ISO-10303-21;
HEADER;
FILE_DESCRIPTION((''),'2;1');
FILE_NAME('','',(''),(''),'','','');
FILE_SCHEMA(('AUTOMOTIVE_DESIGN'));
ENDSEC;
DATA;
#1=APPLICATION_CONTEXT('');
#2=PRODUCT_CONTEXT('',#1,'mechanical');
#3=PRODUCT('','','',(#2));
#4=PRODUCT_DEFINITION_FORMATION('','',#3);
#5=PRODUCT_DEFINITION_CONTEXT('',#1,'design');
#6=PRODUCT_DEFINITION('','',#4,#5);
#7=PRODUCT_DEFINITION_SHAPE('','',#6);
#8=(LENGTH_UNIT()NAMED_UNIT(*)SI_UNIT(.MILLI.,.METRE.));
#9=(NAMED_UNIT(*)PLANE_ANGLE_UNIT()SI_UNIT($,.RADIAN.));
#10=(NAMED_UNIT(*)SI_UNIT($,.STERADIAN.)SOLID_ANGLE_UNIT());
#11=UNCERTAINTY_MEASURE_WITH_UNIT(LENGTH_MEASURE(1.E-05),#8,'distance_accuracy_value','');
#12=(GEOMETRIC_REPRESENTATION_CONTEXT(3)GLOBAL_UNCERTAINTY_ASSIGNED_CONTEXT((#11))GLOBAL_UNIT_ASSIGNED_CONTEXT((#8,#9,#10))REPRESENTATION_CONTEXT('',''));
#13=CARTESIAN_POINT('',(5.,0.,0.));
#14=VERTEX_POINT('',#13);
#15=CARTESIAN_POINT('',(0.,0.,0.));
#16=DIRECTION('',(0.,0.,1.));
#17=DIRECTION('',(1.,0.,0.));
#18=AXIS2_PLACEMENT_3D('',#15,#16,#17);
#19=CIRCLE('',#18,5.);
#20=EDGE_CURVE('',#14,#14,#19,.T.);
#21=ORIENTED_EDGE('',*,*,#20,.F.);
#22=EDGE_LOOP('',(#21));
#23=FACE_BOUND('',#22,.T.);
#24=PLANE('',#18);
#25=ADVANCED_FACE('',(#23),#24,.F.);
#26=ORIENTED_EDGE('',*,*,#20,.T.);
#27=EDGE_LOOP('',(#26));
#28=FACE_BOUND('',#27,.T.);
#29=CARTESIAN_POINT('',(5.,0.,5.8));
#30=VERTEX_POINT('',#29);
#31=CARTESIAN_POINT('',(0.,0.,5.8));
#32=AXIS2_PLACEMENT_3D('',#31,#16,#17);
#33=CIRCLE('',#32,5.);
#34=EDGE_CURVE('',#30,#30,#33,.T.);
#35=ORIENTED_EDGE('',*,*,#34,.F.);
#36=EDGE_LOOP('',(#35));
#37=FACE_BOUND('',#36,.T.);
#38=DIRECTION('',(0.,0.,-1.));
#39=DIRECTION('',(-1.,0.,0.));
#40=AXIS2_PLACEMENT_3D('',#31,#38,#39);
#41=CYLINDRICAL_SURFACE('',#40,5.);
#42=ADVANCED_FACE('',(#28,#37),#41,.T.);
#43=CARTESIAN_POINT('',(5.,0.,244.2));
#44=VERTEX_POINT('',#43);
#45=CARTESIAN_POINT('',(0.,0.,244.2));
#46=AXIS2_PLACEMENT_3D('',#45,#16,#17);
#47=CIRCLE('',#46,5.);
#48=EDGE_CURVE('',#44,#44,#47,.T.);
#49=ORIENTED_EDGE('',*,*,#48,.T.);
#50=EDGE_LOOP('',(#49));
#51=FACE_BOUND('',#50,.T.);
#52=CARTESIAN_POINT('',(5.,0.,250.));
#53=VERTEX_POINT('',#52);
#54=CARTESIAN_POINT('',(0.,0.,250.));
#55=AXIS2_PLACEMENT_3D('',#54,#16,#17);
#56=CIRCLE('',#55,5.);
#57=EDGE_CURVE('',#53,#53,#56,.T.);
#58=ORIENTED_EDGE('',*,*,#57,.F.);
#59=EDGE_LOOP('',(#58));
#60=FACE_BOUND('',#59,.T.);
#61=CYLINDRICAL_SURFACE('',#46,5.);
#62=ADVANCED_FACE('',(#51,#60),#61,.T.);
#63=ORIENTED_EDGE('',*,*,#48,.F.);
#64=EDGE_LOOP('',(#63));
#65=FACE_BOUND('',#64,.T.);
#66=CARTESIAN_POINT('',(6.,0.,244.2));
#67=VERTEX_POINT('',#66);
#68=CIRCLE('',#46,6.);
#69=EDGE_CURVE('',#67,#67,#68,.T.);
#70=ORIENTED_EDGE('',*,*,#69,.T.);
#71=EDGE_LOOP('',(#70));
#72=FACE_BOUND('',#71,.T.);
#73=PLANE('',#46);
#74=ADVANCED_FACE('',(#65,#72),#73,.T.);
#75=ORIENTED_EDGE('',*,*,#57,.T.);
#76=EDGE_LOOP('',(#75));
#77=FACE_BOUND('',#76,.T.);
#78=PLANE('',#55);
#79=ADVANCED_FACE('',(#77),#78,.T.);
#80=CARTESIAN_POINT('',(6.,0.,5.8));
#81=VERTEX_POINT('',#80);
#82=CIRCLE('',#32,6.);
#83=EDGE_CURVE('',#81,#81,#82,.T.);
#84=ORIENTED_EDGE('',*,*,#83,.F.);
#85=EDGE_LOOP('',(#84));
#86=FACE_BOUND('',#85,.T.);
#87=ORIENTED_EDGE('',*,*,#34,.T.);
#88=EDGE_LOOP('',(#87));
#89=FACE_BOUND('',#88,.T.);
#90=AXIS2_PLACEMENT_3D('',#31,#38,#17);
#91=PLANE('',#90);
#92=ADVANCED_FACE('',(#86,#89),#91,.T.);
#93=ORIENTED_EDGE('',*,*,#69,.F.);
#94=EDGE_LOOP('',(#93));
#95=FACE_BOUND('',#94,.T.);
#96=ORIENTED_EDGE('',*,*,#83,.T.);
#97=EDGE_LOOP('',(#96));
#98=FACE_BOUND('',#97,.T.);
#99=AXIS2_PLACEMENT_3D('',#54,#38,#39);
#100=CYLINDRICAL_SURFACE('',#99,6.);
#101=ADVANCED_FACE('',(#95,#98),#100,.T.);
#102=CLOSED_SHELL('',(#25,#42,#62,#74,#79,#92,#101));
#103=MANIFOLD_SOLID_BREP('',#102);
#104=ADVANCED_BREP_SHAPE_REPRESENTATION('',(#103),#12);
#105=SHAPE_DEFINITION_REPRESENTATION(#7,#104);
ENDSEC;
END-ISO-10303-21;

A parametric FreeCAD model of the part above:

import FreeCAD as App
import Part
import Sketcher
from FreeCAD import Vector
Q = App.Units.Quantity

doc = App.newDocument("Part")
params = doc.addObject("Spreadsheet::Sheet", "Params")
for row, (alias, value) in enumerate([
    ("sketch1_diameter", "12 mm"),
    ("pad1_length", "250 mm"),
    ("sketch2_diameter", "12 mm"),
    ("sketch2_diameter2", "10 mm"),
    ("pocket1_length", "5.8 mm"),
], start=1):
    params.set(f"A{row}", alias)
    params.set(f"B{row}", "=" + value)
    params.setAlias(f"B{row}", alias)

body = doc.addObject("PartDesign::Body", "Body")

sketch1 = body.newObject("Sketcher::SketchObject", "Sketch")
sketch1.AttachmentSupport = (doc.getObject("XY_Plane"), [""])
sketch1.MapMode = "FlatFace"
sketch1.addGeometry(Part.Circle(Vector(0, 0, 0), Vector(0, 0, 1), 6), False)
sketch1.addConstraint([
    Sketcher.Constraint("Coincident", 0, 3, -1, 1),
    Sketcher.Constraint("Diameter", 0, Q("12 mm")),
])
sketch1.setExpression("Constraints[1]", "Params.sketch1_diameter")
pad1 = body.newObject("PartDesign::Pad", "Pad")
pad1.Profile = sketch1
pad1.setExpression("Length", "Params.pad1_length")

sketch2 = body.newObject("Sketcher::SketchObject", "Sketch001")
sketch2.AttachmentSupport = (doc.getObject("XY_Plane"), [""])
sketch2.MapMode = "FlatFace"
sketch2.AttachmentOffset = App.Placement(Vector(0, 0, 244.2), App.Rotation())
sketch2.addGeometry([
    Part.Circle(Vector(0, 0, 0), Vector(0, 0, 1), 6),
    Part.Circle(Vector(0, 0, 0), Vector(0, 0, 1), 5),
], False)
sketch2.addConstraint([
    Sketcher.Constraint("Coincident", 0, 3, -1, 1),
    Sketcher.Constraint("Coincident", 1, 3, -1, 1),
    Sketcher.Constraint("Diameter", 0, Q("12 mm")),
    Sketcher.Constraint("Diameter", 1, Q("10 mm")),
])
sketch2.setExpression("Constraints[2]", "Params.sketch2_diameter")
sketch2.setExpression("Constraints[3]", "Params.sketch2_diameter2")
pocket1 = body.newObject("PartDesign::Pocket", "Pocket")
pocket1.Profile = sketch2
pocket1.setExpression("Length", "Params.pocket1_length")
pocket1.Reversed = True
doc.recompute()

datumplane = body.newObject("PartDesign::Plane", "DatumPlane")
datumplane.AttachmentSupport = (doc.getObject("XY_Plane"), [""])
datumplane.MapMode = "FlatFace"
datumplane.AttachmentOffset = App.Placement(Vector(0, 0, 125), App.Rotation())
mirrored = body.newObject("PartDesign::Mirrored", "Mirrored")
mirrored.Originals = [pocket1]
mirrored.MirrorPlane = (datumplane, [""])
body.Tip = mirrored

doc.recompute()
